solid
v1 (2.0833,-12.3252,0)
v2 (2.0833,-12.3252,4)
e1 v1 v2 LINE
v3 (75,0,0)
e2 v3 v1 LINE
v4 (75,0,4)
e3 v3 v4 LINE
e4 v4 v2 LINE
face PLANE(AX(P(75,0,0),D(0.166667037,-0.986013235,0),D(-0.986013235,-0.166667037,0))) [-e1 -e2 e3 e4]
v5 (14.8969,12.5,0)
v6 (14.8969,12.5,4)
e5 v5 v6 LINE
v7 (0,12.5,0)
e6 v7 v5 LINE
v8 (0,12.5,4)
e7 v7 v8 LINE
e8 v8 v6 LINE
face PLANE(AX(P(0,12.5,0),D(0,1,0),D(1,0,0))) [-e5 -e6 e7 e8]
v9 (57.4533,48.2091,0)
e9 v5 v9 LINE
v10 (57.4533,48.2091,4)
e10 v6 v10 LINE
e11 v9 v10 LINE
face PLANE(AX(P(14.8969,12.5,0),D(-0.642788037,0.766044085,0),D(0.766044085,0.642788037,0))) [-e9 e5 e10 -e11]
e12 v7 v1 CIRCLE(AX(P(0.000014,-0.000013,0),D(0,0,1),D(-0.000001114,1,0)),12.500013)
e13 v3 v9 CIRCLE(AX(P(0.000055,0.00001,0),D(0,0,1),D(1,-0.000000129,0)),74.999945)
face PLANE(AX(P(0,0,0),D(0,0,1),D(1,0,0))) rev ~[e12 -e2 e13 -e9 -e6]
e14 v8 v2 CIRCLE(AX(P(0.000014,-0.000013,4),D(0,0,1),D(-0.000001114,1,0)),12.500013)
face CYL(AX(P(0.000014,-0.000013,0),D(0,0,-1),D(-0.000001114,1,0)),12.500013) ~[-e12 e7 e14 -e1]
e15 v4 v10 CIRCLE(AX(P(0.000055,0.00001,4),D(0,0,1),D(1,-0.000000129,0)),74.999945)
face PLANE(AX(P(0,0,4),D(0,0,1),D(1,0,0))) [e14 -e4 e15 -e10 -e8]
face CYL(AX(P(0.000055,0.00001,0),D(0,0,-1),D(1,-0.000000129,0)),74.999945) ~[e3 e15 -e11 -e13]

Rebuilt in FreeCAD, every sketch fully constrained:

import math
import FreeCAD as App
import Part
import Sketcher
from FreeCAD import Vector
Q = App.Units.Quantity

doc = App.newDocument("Part")
body = doc.addObject("PartDesign::Body", "Body")

# Sketch on XY plane
sketch1 = body.newObject("Sketcher::SketchObject", "Sketch")
sketch1.AttachmentSupport = (doc.getObject("XY_Plane"), [""])
sketch1.MapMode = "FlatFace"
sketch1.addGeometry([
    Part.LineSegment(Vector(15, 12, 0), Vector(0, 12, 0)),  # 0
    Part.ArcOfCircle(Part.Circle(Vector(0, 0, 0), Vector(0, 0, 1), 12), math.radians(90), math.radians(280)),  # 1
    Part.LineSegment(Vector(2, -12, 0), Vector(75, 0, 0)),  # 2
    Part.ArcOfCircle(Part.Circle(Vector(0, 0, 0), Vector(0, 0, 1), 75), math.radians(0), math.radians(40)),  # 3
    Part.LineSegment(Vector(57, 48, 0), Vector(15, 12, 0)),  # 4
], False)
sketch1.addConstraint([
    Sketcher.Constraint("Tangent", 0, 2, 1, 1),
    Sketcher.Constraint("Tangent", 1, 2, 2, 1),
    Sketcher.Constraint("Coincident", 2, 2, 3, 1),
    Sketcher.Constraint("Coincident", 3, 2, 4, 1),
    Sketcher.Constraint("Coincident", 4, 2, 0, 1),
    Sketcher.Constraint("Horizontal", 0),
    Sketcher.Constraint("Coincident", 1, 3, -1, 1),
    Sketcher.Constraint("Coincident", 3, 3, -1, 1),
    Sketcher.Constraint("PointOnObject", 2, 2, -1),
    Sketcher.Constraint("Radius", 3, Q("75 mm")),
    Sketcher.Constraint("Radius", 1, Q("12.5 mm")),
    Sketcher.Constraint("Angle", 4, Q("-140 deg")),
    Sketcher.Constraint("DistanceX", 0, 2, 0, 1, Q("14.897 mm")),
])
pad1 = body.newObject("PartDesign::Pad", "Pad")
pad1.Profile = sketch1
pad1.Length = 4

doc.recompute()
